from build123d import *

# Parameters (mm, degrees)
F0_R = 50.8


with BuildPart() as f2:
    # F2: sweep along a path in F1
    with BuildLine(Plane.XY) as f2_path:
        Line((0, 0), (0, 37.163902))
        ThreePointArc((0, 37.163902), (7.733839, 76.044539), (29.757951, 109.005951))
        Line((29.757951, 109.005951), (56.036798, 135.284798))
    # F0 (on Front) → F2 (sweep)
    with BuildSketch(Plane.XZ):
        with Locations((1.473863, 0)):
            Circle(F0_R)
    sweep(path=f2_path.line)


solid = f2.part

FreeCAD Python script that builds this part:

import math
import FreeCAD as App
import Part
import Sketcher
Q = App.Units.Quantity

doc = App.newDocument("Part")
body = doc.addObject("PartDesign::Body", "Body")

sketch1 = body.newObject("Sketcher::SketchObject", "Sketch")
sketch1.AttachmentSupport = (doc.getObject("XZ_Plane"), [""])
sketch1.MapMode = "FlatFace"
sketch1.addGeometry(Part.Circle(App.Vector(1, 0, 0), App.Vector(0, 0, 1), 51), False)
sketch1.addConstraint(Sketcher.Constraint("PointOnObject", 0, 3, -1))
sketch1.addConstraint(Sketcher.Constraint("Diameter", 0, Q("4 in")))
sketch1.addConstraint(Sketcher.Constraint("DistanceX", -1, 1, 0, 3, Q("1.473863 mm")))

sketch2 = body.newObject("Sketcher::SketchObject", "Sketch001")
sketch2.AttachmentSupport = (doc.getObject("XY_Plane"), [""])
sketch2.MapMode = "FlatFace"
sketch2.addGeometry(Part.LineSegment(App.Vector(0, 0, 0), App.Vector(0, 37, 0)), False)
sketch2.addGeometry(Part.ArcOfCircle(Part.Circle(App.Vector(102, 37, 0), App.Vector(0, 0, 1), 102), math.radians(135), math.radians(180)), False)
sketch2.addGeometry(Part.LineSegment(App.Vector(30, 109, 0), App.Vector(56, 135, 0)), False)
sketch2.addConstraint(Sketcher.Constraint("Tangent", 0, 2, 1, 2))
sketch2.addConstraint(Sketcher.Constraint("Tangent", 1, 1, 2, 1))
sketch2.addConstraint(Sketcher.Constraint("Vertical", 0))
sketch2.addConstraint(Sketcher.Constraint("Coincident", 0, 1, -1, 1))
sketch2.addConstraint(Sketcher.Constraint("Angle", 2, Q("45 deg")))
sketch2.addConstraint(Sketcher.Constraint("Radius", 1, Q("101.599993 mm")))
sketch2.addConstraint(Sketcher.Constraint("Distance", 2, Q("37.163902 mm")))
sketch2.addConstraint(Sketcher.Constraint("DistanceY", -1, 1, 2, 2, Q("135.284798 mm")))
doc.recompute()

additivepipe = body.newObject("PartDesign::AdditivePipe", "AdditivePipe")
additivepipe.Profile = sketch1
additivepipe.Spine = (sketch2, ["Edge1", "Edge2", "Edge3"])

doc.recompute()
